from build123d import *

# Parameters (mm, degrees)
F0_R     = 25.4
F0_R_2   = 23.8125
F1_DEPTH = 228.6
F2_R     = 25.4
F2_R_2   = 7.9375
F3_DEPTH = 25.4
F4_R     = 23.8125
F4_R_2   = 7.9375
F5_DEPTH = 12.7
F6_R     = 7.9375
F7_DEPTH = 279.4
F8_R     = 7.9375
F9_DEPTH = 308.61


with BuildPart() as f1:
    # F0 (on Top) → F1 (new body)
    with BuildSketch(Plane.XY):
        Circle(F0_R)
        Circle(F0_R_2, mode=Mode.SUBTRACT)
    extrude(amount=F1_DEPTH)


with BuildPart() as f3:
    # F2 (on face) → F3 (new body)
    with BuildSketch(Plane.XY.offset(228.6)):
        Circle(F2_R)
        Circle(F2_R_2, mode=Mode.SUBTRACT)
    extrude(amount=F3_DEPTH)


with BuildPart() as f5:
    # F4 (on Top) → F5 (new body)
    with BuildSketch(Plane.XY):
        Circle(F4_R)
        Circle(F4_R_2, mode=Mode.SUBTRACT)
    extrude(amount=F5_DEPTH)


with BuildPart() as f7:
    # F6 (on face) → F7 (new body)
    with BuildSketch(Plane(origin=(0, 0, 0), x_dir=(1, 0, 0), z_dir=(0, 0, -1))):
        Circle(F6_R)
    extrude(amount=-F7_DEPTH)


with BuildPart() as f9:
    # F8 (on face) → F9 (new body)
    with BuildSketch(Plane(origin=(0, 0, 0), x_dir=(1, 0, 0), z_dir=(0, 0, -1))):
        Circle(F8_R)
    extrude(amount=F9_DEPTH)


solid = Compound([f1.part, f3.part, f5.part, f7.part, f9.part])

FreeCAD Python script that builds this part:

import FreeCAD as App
import Part
import Sketcher
from FreeCAD import Vector
Q = App.Units.Quantity

doc = App.newDocument("Part")
body = doc.addObject("PartDesign::Body", "Body")

# Sketch on XY plane
sketch1 = doc.addObject("Sketcher::SketchObject", "Sketch")
body.addObject(sketch1)
sketch1.AttachmentSupport = (doc.XY_Plane, [""])
sketch1.MapMode = "FlatFace"
sketch1.addGeometry([
    Part.Circle(Vector(0, 0, 0), Vector(0, 0, 1), 25),
    Part.Circle(Vector(0, 0, 0), Vector(0, 0, 1), 24),
], False)
sketch1.addConstraint([
    Sketcher.Constraint("Coincident", 0, 3, -1, 1),
    Sketcher.Constraint("Coincident", 1, 3, -1, 1),
    Sketcher.Constraint("Diameter", 0, Q("2 in")),
    Sketcher.Constraint("Diameter", 1, Q("1.875 in")),
])
pad1 = doc.addObject("PartDesign::Pad", "Pad")
body.addObject(pad1)
pad1.Profile = sketch1
pad1.Length = Q("9 in")
body2 = doc.addObject("PartDesign::Body", "Body001")

# Sketch on XY plane
sketch2 = doc.addObject("Sketcher::SketchObject", "Sketch001")
body2.addObject(sketch2)
sketch2.AttachmentSupport = (doc.getObject("XY_Plane001"), [""])
sketch2.MapMode = "FlatFace"
sketch2.AttachmentOffset = App.Placement(Vector(0, 0, 9 * 25.4), App.Rotation())
sketch2.addGeometry([
    Part.Circle(Vector(0, 0, 0), Vector(0, 0, 1), 25),
    Part.Circle(Vector(0, 0, 0), Vector(0, 0, 1), 8),
], False)
sketch2.addConstraint([
    Sketcher.Constraint("Coincident", 0, 3, -1, 1),
    Sketcher.Constraint("Coincident", 1, 3, -1, 1),
    Sketcher.Constraint("Diameter", 0, Q("2 in")),
    Sketcher.Constraint("Diameter", 1, Q("0.625 in")),
])
pad2 = doc.addObject("PartDesign::Pad", "Pad001")
body2.addObject(pad2)
pad2.Profile = sketch2
pad2.Length = Q("1 in")
body3 = doc.addObject("PartDesign::Body", "Body002")

# Sketch on XY plane
sketch3 = doc.addObject("Sketcher::SketchObject", "Sketch002")
body3.addObject(sketch3)
sketch3.AttachmentSupport = (doc.getObject("XY_Plane002"), [""])
sketch3.MapMode = "FlatFace"
sketch3.addGeometry([
    Part.Circle(Vector(0, 0, 0), Vector(0, 0, 1), 24),
    Part.Circle(Vector(0, 0, 0), Vector(0, 0, 1), 8),
], False)
sketch3.addConstraint([
    Sketcher.Constraint("Coincident", 0, 3, -1, 1),
    Sketcher.Constraint("Coincident", 1, 3, -1, 1),
    Sketcher.Constraint("Diameter", 0, Q("1.875 in")),
    Sketcher.Constraint("Diameter", 1, Q("0.625 in")),
])
pad3 = doc.addObject("PartDesign::Pad", "Pad002")
body3.addObject(pad3)
pad3.Profile = sketch3
pad3.Length = Q("0.5 in")
body4 = doc.addObject("PartDesign::Body", "Body003")

# Sketch on XY plane
sketch4 = doc.addObject("Sketcher::SketchObject", "Sketch003")
body4.addObject(sketch4)
sketch4.AttachmentSupport = (doc.getObject("XY_Plane003"), [""])
sketch4.MapMode = "FlatFace"
sketch4.addGeometry(Part.Circle(Vector(0, 0, 0), Vector(0, 0, 1), 8), False)
sketch4.addConstraint([
    Sketcher.Constraint("Coincident", 0, 3, -1, 1),
    Sketcher.Constraint("Diameter", 0, Q("0.625 in")),
])
pad4 = doc.addObject("PartDesign::Pad", "Pad003")
body4.addObject(pad4)
pad4.Profile = sketch4
pad4.Length = Q("11 in")
body5 = doc.addObject("PartDesign::Body", "Body004")

# Sketch on XY plane
sketch5 = doc.addObject("Sketcher::SketchObject", "Sketch004")
body5.addObject(sketch5)
sketch5.AttachmentSupport = (doc.getObject("XY_Plane004"), [""])
sketch5.MapMode = "FlatFace"
sketch5.addGeometry(Part.Circle(Vector(0, 0, 0), Vector(0, 0, 1), 8), False)
sketch5.addConstraint([
    Sketcher.Constraint("Coincident", 0, 3, -1, 1),
    Sketcher.Constraint("Diameter", 0, Q("0.625 in")),
])
pad5 = doc.addObject("PartDesign::Pad", "Pad004")
body5.addObject(pad5)
pad5.Profile = sketch5
pad5.Length = Q("12.15 in")
pad5.Reversed = True

doc.recompute()
